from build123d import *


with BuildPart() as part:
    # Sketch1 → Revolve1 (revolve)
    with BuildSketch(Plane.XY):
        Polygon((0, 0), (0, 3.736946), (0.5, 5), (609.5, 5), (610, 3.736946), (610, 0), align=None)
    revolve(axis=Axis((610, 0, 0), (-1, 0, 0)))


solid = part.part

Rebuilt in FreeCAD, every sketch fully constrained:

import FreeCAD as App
import Part
import Sketcher
from FreeCAD import Vector


def add_polygon(sketch, points):
    """Adds a closed chain of lines whose ends are joined by coincident constraints."""
    first, n = sketch.GeometryCount, len(points)
    for a, b in zip(points, points[1:] + points[:1]):
        sketch.addGeometry(Part.LineSegment(App.Vector(*a, 0), App.Vector(*b, 0)), False)
    for i in range(n):
        sketch.addConstraint(Sketcher.Constraint("Coincident", first + i, 2, first + (i + 1) % n, 1))

doc = App.newDocument("Part")
body = doc.addObject("PartDesign::Body", "Body")

# Sketch on XY plane
sketch1 = body.newObject("Sketcher::SketchObject", "Sketch")
sketch1.AttachmentSupport = (doc.getObject("XY_Plane"), [""])
sketch1.MapMode = "FlatFace"
add_polygon(sketch1, [(0, 3.7), (0, 0), (610, 0), (610, 3.7), (609.5, 5), (0.5, 5)])  # lines 0-5
sketch1.addConstraint([
    Sketcher.Constraint("Vertical", 0),
    Sketcher.Constraint("Horizontal", 1),
    Sketcher.Constraint("Vertical", 2),
    Sketcher.Constraint("Horizontal", 4),
    Sketcher.Constraint("Coincident", 0, 2, -1, 1),
    Sketcher.Constraint("Horizontal", 2, 2, 5, 2),
    Sketcher.Constraint("Equal", 3, 5),
    Sketcher.Constraint("DistanceX", 1, 1, 1, 2, 610.0),
    Sketcher.Constraint("DistanceX", 4, 2, 4, 1, 609.0),
    Sketcher.Constraint("DistanceY", -1, 1, 3, 2, 5.0),
    Sketcher.Constraint("Distance", 3, 1.35842),
])
revolution = body.newObject("PartDesign::Revolution", "Revolution")
revolution.Profile = sketch1
revolution.ReferenceAxis = (sketch1, ["H_Axis"])
revolution.Angle = 360

doc.recompute()
